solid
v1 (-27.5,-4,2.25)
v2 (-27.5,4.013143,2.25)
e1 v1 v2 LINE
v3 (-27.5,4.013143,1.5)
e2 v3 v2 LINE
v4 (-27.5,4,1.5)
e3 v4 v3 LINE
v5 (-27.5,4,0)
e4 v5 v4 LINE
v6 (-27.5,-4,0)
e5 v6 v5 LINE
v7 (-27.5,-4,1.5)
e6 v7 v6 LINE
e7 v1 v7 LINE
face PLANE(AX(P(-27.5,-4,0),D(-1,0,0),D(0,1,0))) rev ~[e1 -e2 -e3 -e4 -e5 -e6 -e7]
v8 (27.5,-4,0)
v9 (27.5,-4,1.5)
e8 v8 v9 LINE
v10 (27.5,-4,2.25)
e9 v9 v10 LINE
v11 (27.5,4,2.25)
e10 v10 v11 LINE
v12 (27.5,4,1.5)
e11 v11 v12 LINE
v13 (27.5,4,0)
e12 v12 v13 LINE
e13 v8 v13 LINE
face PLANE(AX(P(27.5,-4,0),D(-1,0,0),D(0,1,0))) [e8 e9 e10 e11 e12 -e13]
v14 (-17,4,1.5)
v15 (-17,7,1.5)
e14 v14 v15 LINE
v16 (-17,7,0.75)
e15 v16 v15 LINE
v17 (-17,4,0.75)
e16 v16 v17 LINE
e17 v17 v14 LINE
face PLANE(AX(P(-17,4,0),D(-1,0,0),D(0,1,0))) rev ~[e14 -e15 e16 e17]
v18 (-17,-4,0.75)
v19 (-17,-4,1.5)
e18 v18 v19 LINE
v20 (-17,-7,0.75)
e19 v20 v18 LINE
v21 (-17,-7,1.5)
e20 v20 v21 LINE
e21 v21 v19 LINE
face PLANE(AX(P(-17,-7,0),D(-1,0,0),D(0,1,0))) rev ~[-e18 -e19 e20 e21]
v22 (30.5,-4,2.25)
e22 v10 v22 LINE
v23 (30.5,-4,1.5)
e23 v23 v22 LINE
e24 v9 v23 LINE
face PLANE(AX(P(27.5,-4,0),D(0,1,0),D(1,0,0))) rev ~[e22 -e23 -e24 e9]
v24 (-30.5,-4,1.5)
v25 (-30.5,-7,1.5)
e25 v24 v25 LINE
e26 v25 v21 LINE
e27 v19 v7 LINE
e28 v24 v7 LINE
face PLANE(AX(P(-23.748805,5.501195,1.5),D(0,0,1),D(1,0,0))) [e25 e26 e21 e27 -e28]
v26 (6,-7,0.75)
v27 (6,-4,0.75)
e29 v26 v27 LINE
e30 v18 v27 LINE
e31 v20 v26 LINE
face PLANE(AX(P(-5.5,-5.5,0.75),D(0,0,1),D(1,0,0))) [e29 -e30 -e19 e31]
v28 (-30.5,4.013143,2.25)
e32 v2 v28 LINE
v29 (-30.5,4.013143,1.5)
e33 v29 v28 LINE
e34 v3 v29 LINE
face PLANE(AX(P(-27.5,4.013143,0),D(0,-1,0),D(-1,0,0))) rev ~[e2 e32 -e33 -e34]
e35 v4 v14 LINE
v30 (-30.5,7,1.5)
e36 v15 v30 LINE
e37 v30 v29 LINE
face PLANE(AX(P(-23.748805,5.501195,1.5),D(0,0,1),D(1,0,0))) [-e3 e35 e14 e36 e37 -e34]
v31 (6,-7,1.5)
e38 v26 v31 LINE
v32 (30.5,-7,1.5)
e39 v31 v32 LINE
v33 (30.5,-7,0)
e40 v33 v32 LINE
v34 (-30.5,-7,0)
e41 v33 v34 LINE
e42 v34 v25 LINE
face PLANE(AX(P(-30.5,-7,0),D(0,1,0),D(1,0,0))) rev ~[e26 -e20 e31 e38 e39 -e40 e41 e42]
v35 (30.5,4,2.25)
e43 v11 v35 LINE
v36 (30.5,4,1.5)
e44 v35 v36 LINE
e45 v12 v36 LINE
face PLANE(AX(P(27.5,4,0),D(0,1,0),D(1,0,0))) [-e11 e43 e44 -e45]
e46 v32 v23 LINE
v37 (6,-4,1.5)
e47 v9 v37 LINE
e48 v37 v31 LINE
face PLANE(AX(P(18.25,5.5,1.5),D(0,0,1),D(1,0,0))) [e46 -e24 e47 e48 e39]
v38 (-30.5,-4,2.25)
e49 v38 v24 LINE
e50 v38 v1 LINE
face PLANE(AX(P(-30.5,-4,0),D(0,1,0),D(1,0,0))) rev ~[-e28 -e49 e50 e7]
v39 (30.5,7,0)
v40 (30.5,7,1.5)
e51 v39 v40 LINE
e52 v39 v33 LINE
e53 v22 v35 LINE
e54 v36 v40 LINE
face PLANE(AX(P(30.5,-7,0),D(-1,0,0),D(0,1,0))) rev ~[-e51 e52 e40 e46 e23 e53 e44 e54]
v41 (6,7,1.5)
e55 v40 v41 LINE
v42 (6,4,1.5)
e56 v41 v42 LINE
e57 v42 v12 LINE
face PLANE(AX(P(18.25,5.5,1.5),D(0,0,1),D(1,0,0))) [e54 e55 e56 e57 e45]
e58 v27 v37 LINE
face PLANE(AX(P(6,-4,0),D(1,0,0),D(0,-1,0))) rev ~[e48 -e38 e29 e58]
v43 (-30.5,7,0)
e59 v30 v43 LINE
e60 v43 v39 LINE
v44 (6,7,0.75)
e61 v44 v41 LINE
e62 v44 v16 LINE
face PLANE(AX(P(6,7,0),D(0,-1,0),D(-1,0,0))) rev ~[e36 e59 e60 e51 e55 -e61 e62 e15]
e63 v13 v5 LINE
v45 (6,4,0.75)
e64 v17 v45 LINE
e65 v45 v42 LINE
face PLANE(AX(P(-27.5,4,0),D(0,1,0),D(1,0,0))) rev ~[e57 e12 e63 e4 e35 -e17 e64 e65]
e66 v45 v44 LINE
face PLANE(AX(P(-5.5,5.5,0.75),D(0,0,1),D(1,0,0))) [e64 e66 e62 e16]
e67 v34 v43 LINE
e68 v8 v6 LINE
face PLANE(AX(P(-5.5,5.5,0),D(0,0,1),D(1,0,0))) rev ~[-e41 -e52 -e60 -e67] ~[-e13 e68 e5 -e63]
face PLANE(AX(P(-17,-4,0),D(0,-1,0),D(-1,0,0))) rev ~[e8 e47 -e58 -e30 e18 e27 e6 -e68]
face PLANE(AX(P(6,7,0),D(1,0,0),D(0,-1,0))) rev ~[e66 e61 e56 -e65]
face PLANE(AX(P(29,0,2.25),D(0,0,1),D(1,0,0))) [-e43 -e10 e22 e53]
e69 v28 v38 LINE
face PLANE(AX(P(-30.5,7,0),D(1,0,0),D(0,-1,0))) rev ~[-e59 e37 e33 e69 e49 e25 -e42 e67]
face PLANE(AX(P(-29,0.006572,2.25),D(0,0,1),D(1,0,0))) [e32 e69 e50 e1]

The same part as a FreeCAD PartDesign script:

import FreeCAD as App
import Part
import Sketcher

V = App.Vector
Q = App.Units.Quantity

doc = App.newDocument("Part")
body = doc.addObject("PartDesign::Body", "Body")
body.AllowCompound = True

# Sketch on XY plane
sketch1 = doc.addObject("Sketcher::SketchObject", "Sketch")
body.addObject(sketch1)
sketch1.AttachmentSupport = (doc.XY_Plane, [""])
sketch1.MapMode = "FlatFace"
sketch1.addGeometry(Part.LineSegment(V(27.5, 4, 0), V(27.5, -4, 0)), False)
sketch1.addGeometry(Part.LineSegment(V(27.5, -4, 0), V(30.5, -4, 0)), False)
sketch1.addGeometry(Part.LineSegment(V(30.5, -4, 0), V(30.5, 4, 0)), False)
sketch1.addGeometry(Part.LineSegment(V(30.5, 4, 0), V(27.5, 4, 0)), False)
sketch1.addGeometry(Part.LineSegment(V(-27.5, 4, 0), V(6, 4, 0)), False)
sketch1.addGeometry(Part.LineSegment(V(6, 4, 0), V(6, 7, 0)), False)
sketch1.addGeometry(Part.LineSegment(V(6, 7, 0), V(-30.5, 7, 0)), False)
sketch1.addGeometry(Part.LineSegment(V(-30.5, 7, 0), V(-30.5, -4, 0)), False)
sketch1.addGeometry(Part.LineSegment(V(-30.5, -4, 0), V(-27.5, -4, 0)), False)
sketch1.addGeometry(Part.LineSegment(V(-27.5, -4, 0), V(-27.5, 4, 0)), False)
sketch1.addGeometry(Part.LineSegment(V(-17, -4, 0), V(-17, -7, 0)), False)
sketch1.addGeometry(Part.LineSegment(V(-17, -7, 0), V(6, -7, 0)), False)
sketch1.addGeometry(Part.LineSegment(V(6, -7, 0), V(6, -4, 0)), False)
sketch1.addGeometry(Part.LineSegment(V(6, -4, 0), V(-17, -4, 0)), False)
sketch1.addConstraint(Sketcher.Constraint("Coincident", 0, 2, 1, 1))
sketch1.addConstraint(Sketcher.Constraint("Coincident", 1, 2, 2, 1))
sketch1.addConstraint(Sketcher.Constraint("Coincident", 2, 2, 3, 1))
sketch1.addConstraint(Sketcher.Constraint("Coincident", 3, 2, 0, 1))
sketch1.addConstraint(Sketcher.Constraint("Coincident", 4, 2, 5, 1))
sketch1.addConstraint(Sketcher.Constraint("Coincident", 5, 2, 6, 1))
sketch1.addConstraint(Sketcher.Constraint("Coincident", 6, 2, 7, 1))
sketch1.addConstraint(Sketcher.Constraint("Coincident", 7, 2, 8, 1))
sketch1.addConstraint(Sketcher.Constraint("Coincident", 8, 2, 9, 1))
sketch1.addConstraint(Sketcher.Constraint("Coincident", 9, 2, 4, 1))
sketch1.addConstraint(Sketcher.Constraint("Coincident", 10, 2, 11, 1))
sketch1.addConstraint(Sketcher.Constraint("Coincident", 11, 2, 12, 1))
sketch1.addConstraint(Sketcher.Constraint("Coincident", 12, 2, 13, 1))
sketch1.addConstraint(Sketcher.Constraint("Coincident", 13, 2, 10, 1))
sketch1.addConstraint(Sketcher.Constraint("Vertical", 0))
sketch1.addConstraint(Sketcher.Constraint("Horizontal", 1))
sketch1.addConstraint(Sketcher.Constraint("Vertical", 2))
sketch1.addConstraint(Sketcher.Constraint("Horizontal", 3))
sketch1.addConstraint(Sketcher.Constraint("Horizontal", 4))
sketch1.addConstraint(Sketcher.Constraint("Vertical", 5))
sketch1.addConstraint(Sketcher.Constraint("Horizontal", 6))
sketch1.addConstraint(Sketcher.Constraint("Vertical", 7))
sketch1.addConstraint(Sketcher.Constraint("Horizontal", 8))
sketch1.addConstraint(Sketcher.Constraint("Vertical", 9))
sketch1.addConstraint(Sketcher.Constraint("Vertical", 10))
sketch1.addConstraint(Sketcher.Constraint("Horizontal", 11))
sketch1.addConstraint(Sketcher.Constraint("Vertical", 12))
sketch1.addConstraint(Sketcher.Constraint("Horizontal", 13))
sketch1.addConstraint(Sketcher.Constraint("Symmetric", 2, 2, 7, 2, -1, 1))
sketch1.addConstraint(Sketcher.Constraint("Symmetric", 0, 2, 9, 2, -1, 1))
sketch1.addConstraint(Sketcher.Constraint("Symmetric", 5, 2, 11, 2, -1))
sketch1.addConstraint(Sketcher.Constraint("Horizontal", 3, 2, 4, 2))
sketch1.addConstraint(Sketcher.Constraint("Horizontal", 8, 2, 12, 2))
sketch1.addConstraint(Sketcher.Constraint("Equal", 8, 5))
sketch1.addConstraint(Sketcher.Constraint("DistanceX", 1, 1, 1, 2, Q("3 mm")))
sketch1.addConstraint(Sketcher.Constraint("DistanceX", 11, 1, 11, 2, Q("23 mm")))
sketch1.addConstraint(Sketcher.Constraint("DistanceY", 0, 2, 0, 1, Q("8 mm")))
sketch1.addConstraint(Sketcher.Constraint("DistanceX", 4, 1, 4, 2, Q("33.5 mm")))
sketch1.addConstraint(Sketcher.Constraint("DistanceX", -1, 1, 4, 2, Q("6 mm")))
pad1 = doc.addObject("PartDesign::Pad", "Pad")
body.addObject(pad1)
pad1.Profile = sketch1
pad1.Length = 0.75

# Sketch on XY plane
sketch2 = doc.addObject("Sketcher::SketchObject", "Sketch001")
body.addObject(sketch2)
sketch2.AttachmentSupport = (doc.XY_Plane, [""])
sketch2.MapMode = "FlatFace"
sketch2.addGeometry(Part.LineSegment(V(-30.5, 4.013143, 0), V(-30.5, -4, 0)), False)
sketch2.addGeometry(Part.LineSegment(V(-30.5, -4, 0), V(-27.5, -4, 0)), False)
sketch2.addGeometry(Part.LineSegment(V(-27.5, -4, 0), V(-27.5, 4.013143, 0)), False)
sketch2.addGeometry(Part.LineSegment(V(-27.5, 4.013143, 0), V(-30.5, 4.013143, 0)), False)
sketch2.addGeometry(Part.LineSegment(V(27.5, 4, 0), V(27.5, -4, 0)), False)
sketch2.addGeometry(Part.LineSegment(V(27.5, -4, 0), V(30.5, -4, 0)), False)
sketch2.addGeometry(Part.LineSegment(V(30.5, -4, 0), V(30.5, 4, 0)), False)
sketch2.addGeometry(Part.LineSegment(V(30.5, 4, 0), V(27.5, 4, 0)), False)
sketch2.addConstraint(Sketcher.Constraint("Coincident", 0, 2, 1, 1))
sketch2.addConstraint(Sketcher.Constraint("Coincident", 1, 2, 2, 1))
sketch2.addConstraint(Sketcher.Constraint("Coincident", 2, 2, 3, 1))
sketch2.addConstraint(Sketcher.Constraint("Coincident", 3, 2, 0, 1))
sketch2.addConstraint(Sketcher.Constraint("Coincident", 4, 2, 5, 1))
sketch2.addConstraint(Sketcher.Constraint("Coincident", 5, 2, 6, 1))
sketch2.addConstraint(Sketcher.Constraint("Coincident", 6, 2, 7, 1))
sketch2.addConstraint(Sketcher.Constraint("Coincident", 7, 2, 4, 1))
sketch2.addConstraint(Sketcher.Constraint("Vertical", 0))
sketch2.addConstraint(Sketcher.Constraint("Horizontal", 1))
sketch2.addConstraint(Sketcher.Constraint("Vertical", 2))
sketch2.addConstraint(Sketcher.Constraint("Horizontal", 3))
sketch2.addConstraint(Sketcher.Constraint("Vertical", 4))
sketch2.addConstraint(Sketcher.Constraint("Horizontal", 5))
sketch2.addConstraint(Sketcher.Constraint("Vertical", 6))
sketch2.addConstraint(Sketcher.Constraint("Horizontal", 7))
sketch2.addConstraint(Sketcher.Constraint("Symmetric", 0, 2, 6, 2, -1, 1))
sketch2.addConstraint(Sketcher.Constraint("Symmetric", 1, 2, 4, 2, -2))
sketch2.addConstraint(Sketcher.Constraint("DistanceX", 1, 1, 1, 2, Q("3 mm")))
sketch2.addConstraint(Sketcher.Constraint("DistanceY", 4, 2, 4, 1, Q("8 mm")))
sketch2.addConstraint(Sketcher.Constraint("DistanceX", 1, 2, 4, 2, Q("55 mm")))
sketch2.addConstraint(Sketcher.Constraint("DistanceY", 0, 2, 0, 1, Q("8.013143 mm")))
pad2 = doc.addObject("PartDesign::Pad", "Pad001")
body.addObject(pad2)
pad2.Profile = sketch2
pad2.Length = 2.25

# Sketch on XY plane
sketch3 = doc.addObject("Sketcher::SketchObject", "Sketch002")
body.addObject(sketch3)
sketch3.AttachmentSupport = (doc.XY_Plane, [""])
sketch3.MapMode = "FlatFace"
sketch3.addGeometry(Part.LineSegment(V(-30.5, 7, 0), V(-30.5, -7, 0)), False)
sketch3.addGeometry(Part.LineSegment(V(-30.5, -7, 0), V(-17, -7, 0)), False)
sketch3.addGeometry(Part.LineSegment(V(-17, -7, 0), V(-17, -4, 0)), False)
sketch3.addGeometry(Part.LineSegment(V(-17, -4, 0), V(-27.5, -4, 0)), False)
sketch3.addGeometry(Part.LineSegment(V(-27.5, -4, 0), V(-27.5, 4, 0)), False)
sketch3.addGeometry(Part.LineSegment(V(-27.5, 4, 0), V(-17, 4, 0)), False)
sketch3.addGeometry(Part.LineSegment(V(-17, 4, 0), V(-17, 7, 0)), False)
sketch3.addGeometry(Part.LineSegment(V(-17, 7, 0), V(-30.5, 7, 0)), False)
sketch3.addGeometry(Part.LineSegment(V(30.5, 7, 0), V(6, 7, 0)), False)
sketch3.addGeometry(Part.LineSegment(V(6, 7, 0), V(6, 4, 0)), False)
sketch3.addGeometry(Part.LineSegment(V(6, 4, 0), V(27.5, 4, 0)), False)
sketch3.addGeometry(Part.LineSegment(V(27.5, 4, 0), V(27.5, -4, 0)), False)
sketch3.addGeometry(Part.LineSegment(V(27.5, -4, 0), V(6, -4, 0)), False)
sketch3.addGeometry(Part.LineSegment(V(6, -4, 0), V(6, -7, 0)), False)
sketch3.addGeometry(Part.LineSegment(V(6, -7, 0), V(30.5, -7, 0)), False)
sketch3.addGeometry(Part.LineSegment(V(30.5, -7, 0), V(30.5, 7, 0)), False)
sketch3.addConstraint(Sketcher.Constraint("Coincident", 0, 2, 1, 1))
sketch3.addConstraint(Sketcher.Constraint("Coincident", 1, 2, 2, 1))
sketch3.addConstraint(Sketcher.Constraint("Coincident", 2, 2, 3, 1))
sketch3.addConstraint(Sketcher.Constraint("Coincident", 3, 2, 4, 1))
sketch3.addConstraint(Sketcher.Constraint("Coincident", 4, 2, 5, 1))
sketch3.addConstraint(Sketcher.Constraint("Coincident", 5, 2, 6, 1))
sketch3.addConstraint(Sketcher.Constraint("Coincident", 6, 2, 7, 1))
sketch3.addConstraint(Sketcher.Constraint("Coincident", 7, 2, 0, 1))
sketch3.addConstraint(Sketcher.Constraint("Coincident", 8, 2, 9, 1))
sketch3.addConstraint(Sketcher.Constraint("Coincident", 9, 2, 10, 1))
sketch3.addConstraint(Sketcher.Constraint("Coincident", 10, 2, 11, 1))
sketch3.addConstraint(Sketcher.Constraint("Coincident", 11, 2, 12, 1))
sketch3.addConstraint(Sketcher.Constraint("Coincident", 12, 2, 13, 1))
sketch3.addConstraint(Sketcher.Constraint("Coincident", 13, 2, 14, 1))
sketch3.addConstraint(Sketcher.Constraint("Coincident", 14, 2, 15, 1))
sketch3.addConstraint(Sketcher.Constraint("Coincident", 15, 2, 8, 1))
sketch3.addConstraint(Sketcher.Constraint("Vertical", 0))
sketch3.addConstraint(Sketcher.Constraint("Horizontal", 1))
sketch3.addConstraint(Sketcher.Constraint("Vertical", 2))
sketch3.addConstraint(Sketcher.Constraint("Horizontal", 3))
sketch3.addConstraint(Sketcher.Constraint("Vertical", 4))
sketch3.addConstraint(Sketcher.Constraint("Horizontal", 5))
sketch3.addConstraint(Sketcher.Constraint("Vertical", 6))
sketch3.addConstraint(Sketcher.Constraint("Horizontal", 7))
sketch3.addConstraint(Sketcher.Constraint("Horizontal", 8))
sketch3.addConstraint(Sketcher.Constraint("Vertical", 9))
sketch3.addConstraint(Sketcher.Constraint("Horizontal", 10))
sketch3.addConstraint(Sketcher.Constraint("Vertical", 11))
sketch3.addConstraint(Sketcher.Constraint("Horizontal", 12))
sketch3.addConstraint(Sketcher.Constraint("Vertical", 13))
sketch3.addConstraint(Sketcher.Constraint("Horizontal", 14))
sketch3.addConstraint(Sketcher.Constraint("Vertical", 15))
sketch3.addConstraint(Sketcher.Constraint("Symmetric", 3, 2, 10, 2, -1, 1))
sketch3.addConstraint(Sketcher.Constraint("Symmetric", 7, 2, 14, 2, -1, 1))
sketch3.addConstraint(Sketcher.Constraint("Symmetric", 2, 2, 5, 2, -1))
sketch3.addConstraint(Sketcher.Constraint("Symmetric", 9, 2, 12, 2, -1))
sketch3.addConstraint(Sketcher.Constraint("Horizontal", 7, 2, 8, 2))
sketch3.addConstraint(Sketcher.Constraint("Horizontal", 1, 2, 13, 2))
sketch3.addConstraint(Sketcher.Constraint("DistanceY", 0, 2, 0, 1, Q("14 mm")))
sketch3.addConstraint(Sketcher.Constraint("DistanceY", 2, 1, 2, 2, Q("3 mm")))
sketch3.addConstraint(Sketcher.Constraint("DistanceX", 1, 1, 1, 2, Q("13.5 mm")))
sketch3.addConstraint(Sketcher.Constraint("DistanceX", 3, 2, 3, 1, Q("10.5 mm")))
sketch3.addConstraint(Sketcher.Constraint("DistanceX", 8, 2, 8, 1, Q("24.5 mm")))
sketch3.addConstraint(Sketcher.Constraint("DistanceX", 1, 2, -1, 1, Q("17 mm")))
pad3 = doc.addObject("PartDesign::Pad", "Pad002")
body.addObject(pad3)
pad3.Profile = sketch3
pad3.Length = 1.5

doc.recompute()
